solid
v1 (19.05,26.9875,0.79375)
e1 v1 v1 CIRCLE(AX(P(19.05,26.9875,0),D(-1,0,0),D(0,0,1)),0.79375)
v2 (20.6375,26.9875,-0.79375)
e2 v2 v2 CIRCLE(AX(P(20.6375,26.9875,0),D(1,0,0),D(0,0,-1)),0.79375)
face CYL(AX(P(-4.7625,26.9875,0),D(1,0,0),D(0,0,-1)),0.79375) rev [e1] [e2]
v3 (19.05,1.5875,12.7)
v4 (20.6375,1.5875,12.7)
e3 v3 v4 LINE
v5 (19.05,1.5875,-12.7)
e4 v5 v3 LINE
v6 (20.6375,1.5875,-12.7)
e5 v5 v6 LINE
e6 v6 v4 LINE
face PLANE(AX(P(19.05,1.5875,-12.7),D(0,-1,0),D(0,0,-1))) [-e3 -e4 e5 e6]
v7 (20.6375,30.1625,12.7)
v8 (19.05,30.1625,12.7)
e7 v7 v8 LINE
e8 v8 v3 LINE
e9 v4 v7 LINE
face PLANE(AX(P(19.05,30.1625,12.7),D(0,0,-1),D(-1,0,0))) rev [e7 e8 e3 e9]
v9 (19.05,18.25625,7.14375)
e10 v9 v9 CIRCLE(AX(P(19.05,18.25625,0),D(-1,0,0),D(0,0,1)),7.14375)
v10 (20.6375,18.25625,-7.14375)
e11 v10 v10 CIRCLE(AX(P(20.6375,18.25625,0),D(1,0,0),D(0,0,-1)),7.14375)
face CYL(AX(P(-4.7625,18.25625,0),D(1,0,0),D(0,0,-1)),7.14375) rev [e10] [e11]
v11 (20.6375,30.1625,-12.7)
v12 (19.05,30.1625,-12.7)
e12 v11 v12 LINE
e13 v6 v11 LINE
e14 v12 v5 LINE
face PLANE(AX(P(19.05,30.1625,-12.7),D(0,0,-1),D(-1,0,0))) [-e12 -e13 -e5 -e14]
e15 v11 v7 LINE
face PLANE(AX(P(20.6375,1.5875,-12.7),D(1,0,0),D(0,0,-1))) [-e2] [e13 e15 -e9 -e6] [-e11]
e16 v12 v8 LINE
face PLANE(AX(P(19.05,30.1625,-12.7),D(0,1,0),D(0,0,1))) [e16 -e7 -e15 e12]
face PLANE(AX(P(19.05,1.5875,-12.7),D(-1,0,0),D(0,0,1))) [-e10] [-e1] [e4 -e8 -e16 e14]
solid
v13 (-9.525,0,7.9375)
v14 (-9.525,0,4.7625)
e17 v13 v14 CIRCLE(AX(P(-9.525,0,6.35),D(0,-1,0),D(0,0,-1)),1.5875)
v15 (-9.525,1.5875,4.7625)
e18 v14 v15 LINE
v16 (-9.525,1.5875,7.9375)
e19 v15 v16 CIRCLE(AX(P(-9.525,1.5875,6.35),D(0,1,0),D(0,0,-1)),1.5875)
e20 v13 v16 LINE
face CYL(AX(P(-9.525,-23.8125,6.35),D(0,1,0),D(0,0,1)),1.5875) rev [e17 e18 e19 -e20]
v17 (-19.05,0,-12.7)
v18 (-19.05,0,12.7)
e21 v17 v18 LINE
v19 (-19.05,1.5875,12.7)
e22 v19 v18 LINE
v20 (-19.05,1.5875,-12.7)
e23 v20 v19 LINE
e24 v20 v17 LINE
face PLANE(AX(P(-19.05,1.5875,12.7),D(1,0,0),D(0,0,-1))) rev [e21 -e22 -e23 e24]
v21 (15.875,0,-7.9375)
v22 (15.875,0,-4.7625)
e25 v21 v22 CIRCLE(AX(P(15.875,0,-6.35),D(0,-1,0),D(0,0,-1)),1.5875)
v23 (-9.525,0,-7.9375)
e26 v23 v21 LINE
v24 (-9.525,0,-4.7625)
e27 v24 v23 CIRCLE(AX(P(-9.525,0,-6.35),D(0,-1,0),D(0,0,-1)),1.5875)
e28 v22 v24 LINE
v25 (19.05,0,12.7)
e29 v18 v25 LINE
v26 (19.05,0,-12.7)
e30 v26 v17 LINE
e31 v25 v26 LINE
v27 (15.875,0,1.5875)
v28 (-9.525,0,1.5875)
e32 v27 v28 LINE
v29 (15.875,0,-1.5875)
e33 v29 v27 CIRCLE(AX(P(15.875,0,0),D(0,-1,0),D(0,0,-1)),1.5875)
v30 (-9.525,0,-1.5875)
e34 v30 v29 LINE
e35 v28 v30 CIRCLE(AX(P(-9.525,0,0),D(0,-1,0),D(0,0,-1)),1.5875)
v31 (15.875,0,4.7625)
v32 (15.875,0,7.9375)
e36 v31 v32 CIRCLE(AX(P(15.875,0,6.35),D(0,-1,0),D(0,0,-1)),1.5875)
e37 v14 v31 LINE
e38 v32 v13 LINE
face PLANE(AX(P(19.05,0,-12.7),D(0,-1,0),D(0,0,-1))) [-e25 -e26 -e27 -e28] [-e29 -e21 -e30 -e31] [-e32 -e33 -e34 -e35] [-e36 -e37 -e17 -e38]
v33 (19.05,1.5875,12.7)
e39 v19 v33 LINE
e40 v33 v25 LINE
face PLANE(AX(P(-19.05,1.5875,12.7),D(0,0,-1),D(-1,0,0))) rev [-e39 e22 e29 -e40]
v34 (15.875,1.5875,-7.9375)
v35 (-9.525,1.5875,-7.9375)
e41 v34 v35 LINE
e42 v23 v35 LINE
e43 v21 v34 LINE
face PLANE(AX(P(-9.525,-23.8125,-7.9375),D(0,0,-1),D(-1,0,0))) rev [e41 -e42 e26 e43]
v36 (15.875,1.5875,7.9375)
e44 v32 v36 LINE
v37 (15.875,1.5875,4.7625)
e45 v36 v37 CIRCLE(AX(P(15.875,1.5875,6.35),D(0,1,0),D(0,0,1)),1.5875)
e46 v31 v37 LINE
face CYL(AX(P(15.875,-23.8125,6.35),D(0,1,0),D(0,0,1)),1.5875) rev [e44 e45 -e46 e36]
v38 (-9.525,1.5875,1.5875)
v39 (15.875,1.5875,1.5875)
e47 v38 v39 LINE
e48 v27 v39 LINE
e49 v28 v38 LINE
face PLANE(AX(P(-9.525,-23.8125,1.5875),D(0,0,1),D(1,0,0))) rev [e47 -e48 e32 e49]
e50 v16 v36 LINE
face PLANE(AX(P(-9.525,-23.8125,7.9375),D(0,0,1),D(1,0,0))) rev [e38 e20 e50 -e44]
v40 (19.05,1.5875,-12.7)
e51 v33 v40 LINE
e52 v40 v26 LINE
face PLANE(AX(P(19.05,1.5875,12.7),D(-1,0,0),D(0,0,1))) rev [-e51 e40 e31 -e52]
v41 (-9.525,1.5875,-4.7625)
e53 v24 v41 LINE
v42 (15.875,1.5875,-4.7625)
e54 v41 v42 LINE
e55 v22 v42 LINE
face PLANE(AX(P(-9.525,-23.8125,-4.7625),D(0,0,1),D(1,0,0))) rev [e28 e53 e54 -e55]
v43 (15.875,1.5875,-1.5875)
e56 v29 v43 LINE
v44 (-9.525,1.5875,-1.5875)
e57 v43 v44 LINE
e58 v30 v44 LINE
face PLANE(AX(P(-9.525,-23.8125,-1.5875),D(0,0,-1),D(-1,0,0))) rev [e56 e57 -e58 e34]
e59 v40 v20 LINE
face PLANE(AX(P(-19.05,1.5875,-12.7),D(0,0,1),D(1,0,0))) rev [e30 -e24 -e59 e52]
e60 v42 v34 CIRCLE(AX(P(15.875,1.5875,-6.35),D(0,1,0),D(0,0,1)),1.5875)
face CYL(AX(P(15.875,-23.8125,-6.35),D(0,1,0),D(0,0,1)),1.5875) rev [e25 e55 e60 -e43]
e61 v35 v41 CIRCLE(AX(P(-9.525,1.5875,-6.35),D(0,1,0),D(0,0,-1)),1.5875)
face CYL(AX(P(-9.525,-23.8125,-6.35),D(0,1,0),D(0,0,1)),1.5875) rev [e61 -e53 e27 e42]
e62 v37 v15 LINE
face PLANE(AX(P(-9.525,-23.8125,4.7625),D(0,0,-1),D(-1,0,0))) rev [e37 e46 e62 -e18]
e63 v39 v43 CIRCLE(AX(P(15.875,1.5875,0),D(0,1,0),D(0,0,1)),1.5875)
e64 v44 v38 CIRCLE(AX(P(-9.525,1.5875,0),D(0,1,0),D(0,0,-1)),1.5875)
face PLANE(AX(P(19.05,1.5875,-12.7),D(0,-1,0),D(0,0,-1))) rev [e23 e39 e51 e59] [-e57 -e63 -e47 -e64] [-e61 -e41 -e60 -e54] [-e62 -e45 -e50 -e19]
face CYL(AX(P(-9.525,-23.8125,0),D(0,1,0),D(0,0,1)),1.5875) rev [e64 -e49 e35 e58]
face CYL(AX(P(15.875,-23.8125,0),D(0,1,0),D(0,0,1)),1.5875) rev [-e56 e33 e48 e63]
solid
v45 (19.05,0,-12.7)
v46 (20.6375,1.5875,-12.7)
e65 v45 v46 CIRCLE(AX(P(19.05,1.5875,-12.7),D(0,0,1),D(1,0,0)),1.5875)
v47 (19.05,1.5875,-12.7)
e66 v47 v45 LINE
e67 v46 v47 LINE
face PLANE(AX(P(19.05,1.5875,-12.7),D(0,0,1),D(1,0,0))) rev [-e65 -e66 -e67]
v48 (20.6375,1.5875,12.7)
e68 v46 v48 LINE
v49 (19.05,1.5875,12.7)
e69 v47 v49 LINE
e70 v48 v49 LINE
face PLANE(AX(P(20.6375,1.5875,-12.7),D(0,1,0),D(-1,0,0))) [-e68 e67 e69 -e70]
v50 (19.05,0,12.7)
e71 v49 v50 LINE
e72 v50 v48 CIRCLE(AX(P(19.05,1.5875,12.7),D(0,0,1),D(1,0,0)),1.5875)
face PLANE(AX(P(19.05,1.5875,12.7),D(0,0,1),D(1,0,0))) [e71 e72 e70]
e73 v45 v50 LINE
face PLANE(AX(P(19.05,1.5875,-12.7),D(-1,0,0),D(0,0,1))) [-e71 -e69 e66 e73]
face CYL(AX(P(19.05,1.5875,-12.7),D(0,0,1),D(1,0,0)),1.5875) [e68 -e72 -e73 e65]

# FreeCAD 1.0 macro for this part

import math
import FreeCAD as App
import Part
import Sketcher
from FreeCAD import Vector
Q = App.Units.Quantity


def add_polygon(sketch, points):
    """Adds a closed chain of lines whose ends are joined by coincident constraints."""
    first, n = sketch.GeometryCount, len(points)
    for a, b in zip(points, points[1:] + points[:1]):
        sketch.addGeometry(Part.LineSegment(App.Vector(*a, 0), App.Vector(*b, 0)), False)
    for i in range(n):
        sketch.addConstraint(Sketcher.Constraint("Coincident", first + i, 2, first + (i + 1) % n, 1))

doc = App.newDocument("Part")
params = doc.addObject("Spreadsheet::Sheet", "Params")
for row, (alias, value) in enumerate([
    ("sketch1_height", "1 in"),
    ("sketch1_width", "1.5 in"),
    ("pad1_length", "0.0625 in"),
    ("sketch2_width", "1 in"),
    ("sketch2_radius", "0.0625 in"),
    ("pocket1_length", "1 in"),
    ("linearpattern_pitch", "0.25 in"),
    ("sketch3_width", "0.0625 in"),
    ("sketch3_height", "1.125 in"),
    ("pad2_length", "1 in"),
    ("sketch4_diameter", "0.5625 in"),
    ("sketch4_diameter2", "0.0625 in"),
    ("pocket2_length", "1 in"),
    ("sketch5_radius", "0.0625 in"),
    ("pad3_length", "1 in"),
], start=1):
    params.set(f"A{row}", alias)
    params.set(f"B{row}", "=" + value)
    params.setAlias(f"B{row}", alias)

body = doc.addObject("PartDesign::Body", "Body")

# Sketch on XZ plane
sketch1 = body.newObject("Sketcher::SketchObject", "Sketch")
sketch1.AttachmentSupport = (doc.getObject("XZ_Plane"), [""])
sketch1.MapMode = "FlatFace"
add_polygon(sketch1, [(-19.05, -12.7), (-19.05, 12.7), (19.05, 12.7), (19.05, -12.7)])  # lines 0-3
sketch1.addConstraint(Sketcher.Constraint("Vertical", 0))
sketch1.addConstraint(Sketcher.Constraint("Horizontal", 1))
sketch1.addConstraint(Sketcher.Constraint("Vertical", 2))
sketch1.addConstraint(Sketcher.Constraint("Horizontal", 3))
sketch1.addConstraint(Sketcher.Constraint("Symmetric", 0, 2, 2, 2, -1, 1))
sketch1.addConstraint(Sketcher.Constraint("DistanceY", 0, 1, 0, 2, Q("1 in")))
sketch1.addConstraint(Sketcher.Constraint("DistanceX", 1, 1, 1, 2, Q("1.5 in")))
sketch1.setExpression("Constraints[9]", "Params.sketch1_height")
sketch1.setExpression("Constraints[10]", "Params.sketch1_width")
pad1 = body.newObject("PartDesign::Pad", "Pad")
pad1.Profile = sketch1
pad1.setExpression("Length", "Params.pad1_length")
pad1.Reversed = True

# Sketch on XZ plane
sketch2 = body.newObject("Sketcher::SketchObject", "Sketch001")
sketch2.AttachmentSupport = (doc.getObject("XZ_Plane"), [""])
sketch2.MapMode = "FlatFace"
sketch2.AttachmentOffset = App.Placement(Vector(0, 0, -0.0625 * 25.4), App.Rotation())
sketch2.addGeometry(Part.LineSegment(Vector(15.875, 4.7625, 0), Vector(-9.525, 4.7625, 0)), False)
sketch2.addGeometry(Part.ArcOfCircle(Part.Circle(Vector(-9.525, 6.35, 0), Vector(0, 0, 1), 1.5875), math.radians(90), math.radians(270)), False)
sketch2.addGeometry(Part.LineSegment(Vector(-9.525, 7.9375, 0), Vector(15.875, 7.9375, 0)), False)
sketch2.addGeometry(Part.ArcOfCircle(Part.Circle(Vector(15.875, 6.35, 0), Vector(0, 0, 1), 1.5875), math.radians(-90), math.radians(90)), False)
sketch2.addConstraint(Sketcher.Constraint("Tangent", 0, 2, 1, 2))
sketch2.addConstraint(Sketcher.Constraint("Tangent", 1, 1, 2, 1))
sketch2.addConstraint(Sketcher.Constraint("Tangent", 2, 2, 3, 2))
sketch2.addConstraint(Sketcher.Constraint("Tangent", 3, 1, 0, 1))
sketch2.addConstraint(Sketcher.Constraint("Horizontal", 0))
sketch2.addConstraint(Sketcher.Constraint("Horizontal", 2))
sketch2.addConstraint(Sketcher.Constraint("DistanceX", 0, 2, 0, 1, Q("1 in")))
sketch2.addConstraint(Sketcher.Constraint("Radius", 1, Q("0.0625 in")))
sketch2.addConstraint(Sketcher.Constraint("DistanceY", -1, 1, 1, 3, Q("0.25 in")))
sketch2.addConstraint(Sketcher.Constraint("DistanceX", 1, 3, -1, 1, Q("0.375 in")))
sketch2.setExpression("Constraints[6]", "Params.sketch2_width")
sketch2.setExpression("Constraints[7]", "Params.sketch2_radius")
pocket1 = body.newObject("PartDesign::Pocket", "Pocket")
pocket1.Profile = sketch2
pocket1.setExpression("Length", "Params.pocket1_length")
pocket1.Reversed = True
doc.recompute()

linearpattern = body.newObject("PartDesign::LinearPattern", "LinearPattern")
linearpattern.Originals = [pocket1]
linearpattern.Direction = (doc.getObject("Z_Axis"), [""])
linearpattern.Mode = "offset"
linearpattern.setExpression("Offset", "Params.linearpattern_pitch")
linearpattern.Occurrences = 3
linearpattern.Reversed = True
body.Tip = linearpattern
body2 = doc.addObject("PartDesign::Body", "Body001")

# Sketch on XY plane
sketch3 = body2.newObject("Sketcher::SketchObject", "Sketch002")
sketch3.AttachmentSupport = (doc.getObject("XY_Plane001"), [""])
sketch3.MapMode = "FlatFace"
sketch3.AttachmentOffset = App.Placement(Vector(0, 0, 0.5 * 25.4), App.Rotation())
add_polygon(sketch3, [(19.05, 30.1625), (19.05, 1.5875), (20.6375, 1.5875), (20.6375, 30.1625)])  # lines 0-3
sketch3.addConstraint(Sketcher.Constraint("Vertical", 0))
sketch3.addConstraint(Sketcher.Constraint("Horizontal", 1))
sketch3.addConstraint(Sketcher.Constraint("Vertical", 2))
sketch3.addConstraint(Sketcher.Constraint("Horizontal", 3))
sketch3.addConstraint(Sketcher.Constraint("DistanceX", 1, 1, 1, 2, Q("0.0625 in")))
sketch3.addConstraint(Sketcher.Constraint("DistanceY", 0, 2, 0, 1, Q("1.125 in")))
sketch3.addConstraint(Sketcher.Constraint("DistanceX", -1, 1, 0, 2, Q("0.75 in")))
sketch3.addConstraint(Sketcher.Constraint("DistanceY", -1, 1, 0, 2, Q("0.0625 in")))
sketch3.setExpression("Constraints[8]", "Params.sketch3_width")
sketch3.setExpression("Constraints[9]", "Params.sketch3_height")
pad2 = body2.newObject("PartDesign::Pad", "Pad001")
pad2.Profile = sketch3
pad2.setExpression("Length", "Params.pad2_length")
pad2.Reversed = True

# Sketch on YZ plane
sketch4 = body2.newObject("Sketcher::SketchObject", "Sketch003")
sketch4.AttachmentSupport = (doc.getObject("YZ_Plane001"), [""])
sketch4.MapMode = "FlatFace"
sketch4.AttachmentOffset = App.Placement(Vector(0, 0, 0.8125 * 25.4), App.Rotation())
sketch4.addGeometry(Part.Circle(Vector(18.25625, 0, 0), Vector(0, 0, 1), 7.14375), False)
sketch4.addGeometry(Part.Circle(Vector(26.9875, 0, 0), Vector(0, 0, 1), 0.79375), False)
sketch4.addConstraint(Sketcher.Constraint("PointOnObject", 0, 3, -1))
sketch4.addConstraint(Sketcher.Constraint("PointOnObject", 1, 3, -1))
sketch4.addConstraint(Sketcher.Constraint("Diameter", 0, Q("0.5625 in")))
sketch4.addConstraint(Sketcher.Constraint("Diameter", 1, Q("0.0625 in")))
sketch4.addConstraint(Sketcher.Constraint("DistanceX", -1, 1, 0, 3, Q("0.71875 in")))
sketch4.addConstraint(Sketcher.Constraint("DistanceX", -1, 1, 1, 3, Q("1.0625 in")))
sketch4.setExpression("Constraints[2]", "Params.sketch4_diameter")
sketch4.setExpression("Constraints[3]", "Params.sketch4_diameter2")
pocket2 = body2.newObject("PartDesign::Pocket", "Pocket001")
pocket2.Profile = sketch4
pocket2.setExpression("Length", "Params.pocket2_length")
body3 = doc.addObject("PartDesign::Body", "Body002")

# Sketch on XY plane
sketch5 = body3.newObject("Sketcher::SketchObject", "Sketch004")
sketch5.AttachmentSupport = (doc.getObject("XY_Plane002"), [""])
sketch5.MapMode = "FlatFace"
sketch5.AttachmentOffset = App.Placement(Vector(0, 0, 0.5 * 25.4), App.Rotation())
sketch5.addGeometry(Part.LineSegment(Vector(20.6375, 1.5875, 0), Vector(19.05, 1.5875, 0)), False)
sketch5.addGeometry(Part.LineSegment(Vector(19.05, 1.5875, 0), Vector(19.05, 0, 0)), False)
sketch5.addGeometry(Part.ArcOfCircle(Part.Circle(Vector(19.05, 1.5875, 0), Vector(0, 0, 1), 1.5875), math.radians(-90), math.radians(0)), False)
sketch5.addConstraint(Sketcher.Constraint("Coincident", 0, 2, 1, 1))
sketch5.addConstraint(Sketcher.Constraint("Coincident", 1, 2, 2, 1))
sketch5.addConstraint(Sketcher.Constraint("Coincident", 2, 2, 0, 1))
sketch5.addConstraint(Sketcher.Constraint("Horizontal", 0))
sketch5.addConstraint(Sketcher.Constraint("Vertical", 1))
sketch5.addConstraint(Sketcher.Constraint("Coincident", 0, 2, 2, 3))
sketch5.addConstraint(Sketcher.Constraint("PointOnObject", 1, 2, -1))
sketch5.addConstraint(Sketcher.Constraint("Radius", 2, Q("0.0625 in")))
sketch5.addConstraint(Sketcher.Constraint("DistanceX", -1, 1, 2, 3, Q("0.75 in")))
sketch5.setExpression("Constraints[7]", "Params.sketch5_radius")
pad3 = body3.newObject("PartDesign::Pad", "Pad002")
pad3.Profile = sketch5
pad3.setExpression("Length", "Params.pad3_length")
pad3.Reversed = True

doc.recompute()
